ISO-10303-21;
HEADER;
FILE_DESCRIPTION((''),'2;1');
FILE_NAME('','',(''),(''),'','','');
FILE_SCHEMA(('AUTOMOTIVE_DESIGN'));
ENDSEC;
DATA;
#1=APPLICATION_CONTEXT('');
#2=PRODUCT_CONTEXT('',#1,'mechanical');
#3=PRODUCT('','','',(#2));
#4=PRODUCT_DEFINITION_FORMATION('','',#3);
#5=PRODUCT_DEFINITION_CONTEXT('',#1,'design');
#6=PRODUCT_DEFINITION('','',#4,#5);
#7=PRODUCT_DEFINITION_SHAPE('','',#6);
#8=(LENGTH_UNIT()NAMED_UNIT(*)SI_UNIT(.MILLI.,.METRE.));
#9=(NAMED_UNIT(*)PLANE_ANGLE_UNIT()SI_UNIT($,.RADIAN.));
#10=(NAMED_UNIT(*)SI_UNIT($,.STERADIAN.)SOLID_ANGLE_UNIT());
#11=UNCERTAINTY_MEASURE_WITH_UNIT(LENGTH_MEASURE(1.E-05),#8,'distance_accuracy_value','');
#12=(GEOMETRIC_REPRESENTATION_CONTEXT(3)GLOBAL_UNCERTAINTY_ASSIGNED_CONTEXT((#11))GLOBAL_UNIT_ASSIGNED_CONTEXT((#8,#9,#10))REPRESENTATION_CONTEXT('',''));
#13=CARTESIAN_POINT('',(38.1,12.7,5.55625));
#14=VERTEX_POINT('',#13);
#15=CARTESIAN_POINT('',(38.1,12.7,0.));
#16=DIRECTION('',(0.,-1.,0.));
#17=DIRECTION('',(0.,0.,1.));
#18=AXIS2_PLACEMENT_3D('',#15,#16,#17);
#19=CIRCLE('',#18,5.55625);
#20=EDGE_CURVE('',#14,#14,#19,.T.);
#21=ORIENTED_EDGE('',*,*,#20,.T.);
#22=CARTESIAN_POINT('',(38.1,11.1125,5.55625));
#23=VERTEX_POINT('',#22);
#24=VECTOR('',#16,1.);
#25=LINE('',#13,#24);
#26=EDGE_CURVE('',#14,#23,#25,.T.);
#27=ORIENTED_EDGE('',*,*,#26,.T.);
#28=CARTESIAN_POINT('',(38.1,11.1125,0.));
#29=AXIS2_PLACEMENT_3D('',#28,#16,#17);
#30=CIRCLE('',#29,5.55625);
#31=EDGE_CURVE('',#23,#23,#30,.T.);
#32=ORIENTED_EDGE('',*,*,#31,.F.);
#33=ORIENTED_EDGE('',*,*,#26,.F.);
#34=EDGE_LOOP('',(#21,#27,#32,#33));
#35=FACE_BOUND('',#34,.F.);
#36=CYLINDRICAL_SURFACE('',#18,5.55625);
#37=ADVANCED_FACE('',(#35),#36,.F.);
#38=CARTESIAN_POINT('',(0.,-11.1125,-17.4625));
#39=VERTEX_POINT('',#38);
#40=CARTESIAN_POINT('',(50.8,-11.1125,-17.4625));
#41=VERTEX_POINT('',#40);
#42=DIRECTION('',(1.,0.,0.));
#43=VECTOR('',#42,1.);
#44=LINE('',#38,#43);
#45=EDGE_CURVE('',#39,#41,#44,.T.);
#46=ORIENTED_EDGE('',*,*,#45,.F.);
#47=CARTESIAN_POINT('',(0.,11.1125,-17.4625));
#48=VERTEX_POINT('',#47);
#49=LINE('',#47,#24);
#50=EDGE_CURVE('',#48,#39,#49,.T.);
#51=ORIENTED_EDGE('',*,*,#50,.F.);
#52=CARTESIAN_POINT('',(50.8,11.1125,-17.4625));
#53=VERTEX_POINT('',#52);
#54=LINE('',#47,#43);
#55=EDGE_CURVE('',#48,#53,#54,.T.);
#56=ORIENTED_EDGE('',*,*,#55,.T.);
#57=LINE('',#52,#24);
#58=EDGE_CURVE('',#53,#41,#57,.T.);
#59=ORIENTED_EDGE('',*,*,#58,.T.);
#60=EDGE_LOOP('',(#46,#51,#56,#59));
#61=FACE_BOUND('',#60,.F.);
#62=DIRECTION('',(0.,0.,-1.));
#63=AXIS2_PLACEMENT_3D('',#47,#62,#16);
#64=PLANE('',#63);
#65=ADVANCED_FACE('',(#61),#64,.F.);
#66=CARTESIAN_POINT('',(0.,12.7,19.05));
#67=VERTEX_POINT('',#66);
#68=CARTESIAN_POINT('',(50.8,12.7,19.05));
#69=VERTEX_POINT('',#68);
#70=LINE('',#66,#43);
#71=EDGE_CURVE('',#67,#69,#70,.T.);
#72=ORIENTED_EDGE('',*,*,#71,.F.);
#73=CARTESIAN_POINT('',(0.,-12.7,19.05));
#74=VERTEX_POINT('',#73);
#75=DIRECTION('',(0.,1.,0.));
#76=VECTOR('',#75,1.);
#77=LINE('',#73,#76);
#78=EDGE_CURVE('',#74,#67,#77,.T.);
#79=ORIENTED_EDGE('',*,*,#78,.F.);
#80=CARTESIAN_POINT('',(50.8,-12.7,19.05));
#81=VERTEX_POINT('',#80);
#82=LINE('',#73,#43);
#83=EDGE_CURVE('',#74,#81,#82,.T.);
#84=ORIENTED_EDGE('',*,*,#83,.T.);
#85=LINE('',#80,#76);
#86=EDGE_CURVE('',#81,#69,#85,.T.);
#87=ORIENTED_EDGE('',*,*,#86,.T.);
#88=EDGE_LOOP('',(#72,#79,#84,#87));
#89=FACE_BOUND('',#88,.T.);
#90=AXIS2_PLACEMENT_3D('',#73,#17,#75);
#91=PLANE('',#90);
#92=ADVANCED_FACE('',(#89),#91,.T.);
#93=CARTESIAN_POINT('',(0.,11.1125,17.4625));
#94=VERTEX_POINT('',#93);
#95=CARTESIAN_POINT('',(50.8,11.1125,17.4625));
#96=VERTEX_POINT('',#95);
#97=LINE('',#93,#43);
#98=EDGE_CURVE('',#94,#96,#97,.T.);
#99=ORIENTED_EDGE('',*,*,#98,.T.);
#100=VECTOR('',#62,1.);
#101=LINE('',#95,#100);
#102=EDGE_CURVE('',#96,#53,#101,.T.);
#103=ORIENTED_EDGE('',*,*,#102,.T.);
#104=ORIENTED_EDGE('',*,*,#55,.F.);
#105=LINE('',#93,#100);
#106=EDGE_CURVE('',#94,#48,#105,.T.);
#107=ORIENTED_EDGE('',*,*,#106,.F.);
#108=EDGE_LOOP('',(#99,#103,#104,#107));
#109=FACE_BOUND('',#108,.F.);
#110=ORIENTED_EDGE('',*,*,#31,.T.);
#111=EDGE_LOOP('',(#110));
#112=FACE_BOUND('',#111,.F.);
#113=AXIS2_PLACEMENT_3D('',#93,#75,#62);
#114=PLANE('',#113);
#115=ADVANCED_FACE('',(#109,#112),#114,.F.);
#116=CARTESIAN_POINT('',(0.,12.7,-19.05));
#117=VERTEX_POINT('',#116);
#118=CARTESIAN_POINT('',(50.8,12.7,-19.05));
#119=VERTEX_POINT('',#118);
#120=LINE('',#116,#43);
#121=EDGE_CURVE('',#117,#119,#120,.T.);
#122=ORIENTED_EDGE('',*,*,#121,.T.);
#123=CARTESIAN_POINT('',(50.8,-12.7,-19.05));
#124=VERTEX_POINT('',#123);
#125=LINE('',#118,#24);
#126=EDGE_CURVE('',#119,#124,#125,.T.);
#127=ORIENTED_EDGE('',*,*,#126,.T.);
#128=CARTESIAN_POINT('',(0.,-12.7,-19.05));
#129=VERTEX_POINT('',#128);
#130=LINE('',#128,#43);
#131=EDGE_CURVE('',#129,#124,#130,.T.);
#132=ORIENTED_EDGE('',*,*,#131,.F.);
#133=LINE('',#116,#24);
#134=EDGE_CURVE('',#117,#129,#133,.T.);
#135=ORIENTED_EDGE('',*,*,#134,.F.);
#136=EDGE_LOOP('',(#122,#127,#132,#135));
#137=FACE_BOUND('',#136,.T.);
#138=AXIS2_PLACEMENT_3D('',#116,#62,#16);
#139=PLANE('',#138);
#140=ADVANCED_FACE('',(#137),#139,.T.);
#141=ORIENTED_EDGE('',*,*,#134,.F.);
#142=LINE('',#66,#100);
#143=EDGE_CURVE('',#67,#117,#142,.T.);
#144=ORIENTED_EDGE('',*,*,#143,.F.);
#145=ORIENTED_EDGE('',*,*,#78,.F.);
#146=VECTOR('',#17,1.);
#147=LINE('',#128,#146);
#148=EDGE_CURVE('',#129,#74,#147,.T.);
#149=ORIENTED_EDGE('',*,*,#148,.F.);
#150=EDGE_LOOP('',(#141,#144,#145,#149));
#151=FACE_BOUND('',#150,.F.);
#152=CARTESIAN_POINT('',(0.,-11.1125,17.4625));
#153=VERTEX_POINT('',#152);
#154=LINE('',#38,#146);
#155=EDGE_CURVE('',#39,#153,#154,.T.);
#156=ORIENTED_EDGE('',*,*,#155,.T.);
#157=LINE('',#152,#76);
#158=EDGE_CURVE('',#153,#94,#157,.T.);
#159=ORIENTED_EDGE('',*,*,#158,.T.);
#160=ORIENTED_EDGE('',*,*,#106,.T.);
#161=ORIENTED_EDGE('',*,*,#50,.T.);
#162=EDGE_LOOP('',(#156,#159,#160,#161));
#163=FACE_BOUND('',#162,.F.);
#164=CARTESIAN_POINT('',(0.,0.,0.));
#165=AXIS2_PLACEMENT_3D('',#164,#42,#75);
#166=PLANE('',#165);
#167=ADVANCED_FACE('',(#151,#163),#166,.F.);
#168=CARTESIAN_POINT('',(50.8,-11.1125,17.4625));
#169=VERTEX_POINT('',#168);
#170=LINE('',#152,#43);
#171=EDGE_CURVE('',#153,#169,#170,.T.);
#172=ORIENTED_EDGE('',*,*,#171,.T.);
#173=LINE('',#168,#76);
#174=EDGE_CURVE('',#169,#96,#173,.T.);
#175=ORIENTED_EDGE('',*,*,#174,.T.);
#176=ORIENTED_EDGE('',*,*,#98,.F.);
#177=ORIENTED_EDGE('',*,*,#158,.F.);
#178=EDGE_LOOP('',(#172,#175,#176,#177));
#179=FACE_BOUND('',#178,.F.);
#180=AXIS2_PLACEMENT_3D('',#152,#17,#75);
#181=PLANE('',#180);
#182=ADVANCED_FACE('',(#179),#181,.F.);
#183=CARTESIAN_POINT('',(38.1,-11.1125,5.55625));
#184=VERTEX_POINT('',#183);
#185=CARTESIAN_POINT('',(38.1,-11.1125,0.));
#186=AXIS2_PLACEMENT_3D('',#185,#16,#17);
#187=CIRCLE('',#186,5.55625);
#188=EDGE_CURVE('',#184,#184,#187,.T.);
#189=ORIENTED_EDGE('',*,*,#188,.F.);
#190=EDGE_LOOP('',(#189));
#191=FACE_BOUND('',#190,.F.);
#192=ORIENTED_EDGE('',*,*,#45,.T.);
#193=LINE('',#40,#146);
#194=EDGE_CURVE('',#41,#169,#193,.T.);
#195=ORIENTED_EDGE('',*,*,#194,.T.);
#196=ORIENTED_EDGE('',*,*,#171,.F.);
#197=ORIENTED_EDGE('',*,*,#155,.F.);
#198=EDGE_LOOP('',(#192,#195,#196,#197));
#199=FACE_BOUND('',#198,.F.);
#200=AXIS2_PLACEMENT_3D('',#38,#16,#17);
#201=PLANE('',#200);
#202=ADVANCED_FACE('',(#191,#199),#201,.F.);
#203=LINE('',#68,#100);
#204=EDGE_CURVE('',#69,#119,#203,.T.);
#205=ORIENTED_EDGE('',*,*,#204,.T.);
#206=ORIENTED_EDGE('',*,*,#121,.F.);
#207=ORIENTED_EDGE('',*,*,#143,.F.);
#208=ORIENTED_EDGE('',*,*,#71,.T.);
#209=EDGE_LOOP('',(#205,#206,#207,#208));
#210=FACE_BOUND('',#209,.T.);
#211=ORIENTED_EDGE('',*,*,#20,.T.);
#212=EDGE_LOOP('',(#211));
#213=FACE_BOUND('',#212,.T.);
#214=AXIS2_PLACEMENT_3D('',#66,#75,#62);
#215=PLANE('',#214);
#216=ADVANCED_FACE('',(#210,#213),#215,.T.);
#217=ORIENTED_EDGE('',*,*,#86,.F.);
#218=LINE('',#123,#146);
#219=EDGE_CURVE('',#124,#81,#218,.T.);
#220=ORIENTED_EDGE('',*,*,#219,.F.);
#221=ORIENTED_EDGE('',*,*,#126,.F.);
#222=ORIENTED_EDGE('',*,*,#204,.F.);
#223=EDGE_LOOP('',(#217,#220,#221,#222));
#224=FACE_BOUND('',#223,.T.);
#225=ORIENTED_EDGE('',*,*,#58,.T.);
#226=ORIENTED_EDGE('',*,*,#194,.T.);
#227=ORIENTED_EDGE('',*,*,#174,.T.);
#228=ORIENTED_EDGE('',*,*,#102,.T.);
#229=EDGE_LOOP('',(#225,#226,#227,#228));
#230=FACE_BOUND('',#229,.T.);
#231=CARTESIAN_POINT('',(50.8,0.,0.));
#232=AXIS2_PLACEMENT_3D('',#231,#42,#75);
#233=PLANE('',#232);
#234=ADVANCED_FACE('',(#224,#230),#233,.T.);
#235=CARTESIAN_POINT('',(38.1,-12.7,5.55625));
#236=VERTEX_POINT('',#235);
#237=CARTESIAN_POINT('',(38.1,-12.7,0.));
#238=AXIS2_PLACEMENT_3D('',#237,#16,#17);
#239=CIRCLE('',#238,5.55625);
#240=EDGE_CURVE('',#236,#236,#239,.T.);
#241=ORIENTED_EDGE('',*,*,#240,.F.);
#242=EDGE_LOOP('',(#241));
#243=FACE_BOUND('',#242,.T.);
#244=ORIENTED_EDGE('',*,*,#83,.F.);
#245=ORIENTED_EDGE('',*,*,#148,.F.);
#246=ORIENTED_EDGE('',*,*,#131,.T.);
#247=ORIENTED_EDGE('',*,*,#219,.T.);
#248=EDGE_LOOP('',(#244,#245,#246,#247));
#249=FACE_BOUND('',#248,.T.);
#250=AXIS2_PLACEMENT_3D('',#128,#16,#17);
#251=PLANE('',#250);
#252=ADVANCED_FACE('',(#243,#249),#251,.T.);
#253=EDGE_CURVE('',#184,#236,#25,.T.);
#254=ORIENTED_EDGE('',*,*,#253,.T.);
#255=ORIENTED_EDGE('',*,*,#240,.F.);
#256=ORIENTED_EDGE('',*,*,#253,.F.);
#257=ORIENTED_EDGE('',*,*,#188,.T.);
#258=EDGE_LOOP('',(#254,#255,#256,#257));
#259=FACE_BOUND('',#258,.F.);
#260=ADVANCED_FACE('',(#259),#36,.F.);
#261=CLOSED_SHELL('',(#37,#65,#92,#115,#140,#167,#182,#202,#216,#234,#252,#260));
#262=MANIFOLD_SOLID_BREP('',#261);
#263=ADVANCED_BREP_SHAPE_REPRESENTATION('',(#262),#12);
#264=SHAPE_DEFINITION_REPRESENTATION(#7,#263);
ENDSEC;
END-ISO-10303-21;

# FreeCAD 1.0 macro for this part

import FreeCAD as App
import Part
import Sketcher
from FreeCAD import Vector
Q = App.Units.Quantity


def add_polygon(sketch, points):
    """Adds a closed chain of lines whose ends are joined by coincident constraints."""
    first, n = sketch.GeometryCount, len(points)
    for a, b in zip(points, points[1:] + points[:1]):
        sketch.addGeometry(Part.LineSegment(App.Vector(*a, 0), App.Vector(*b, 0)), False)
    for i in range(n):
        sketch.addConstraint(Sketcher.Constraint("Coincident", first + i, 2, first + (i + 1) % n, 1))

doc = App.newDocument("Part")
body = doc.addObject("PartDesign::Body", "Body")

sketch1 = body.newObject("Sketcher::SketchObject", "Sketch")
sketch1.AttachmentSupport = (doc.getObject("YZ_Plane"), [""])
sketch1.MapMode = "FlatFace"
add_polygon(sketch1, [(13, 19), (-13, 19), (-13, -19), (13, -19)])
add_polygon(sketch1, [(-11, -17), (-11, 17), (11, 17), (11, -17)])
sketch1.addConstraint([
    Sketcher.Constraint("Horizontal", 0),
    Sketcher.Constraint("Vertical", 1),
    Sketcher.Constraint("Horizontal", 2),
    Sketcher.Constraint("Vertical", 3),
    Sketcher.Constraint("Vertical", 4),
    Sketcher.Constraint("Horizontal", 5),
    Sketcher.Constraint("Vertical", 6),
    Sketcher.Constraint("Horizontal", 7),
    Sketcher.Constraint("Symmetric", 0, 2, 2, 2, -1, 1),
    Sketcher.Constraint("Symmetric", 4, 2, 6, 2, -1, 1),
    Sketcher.Constraint("DistanceX", 0, 2, 0, 1, Q("1 in")),
    Sketcher.Constraint("DistanceY", 1, 2, 1, 1, Q("1.5 in")),
    Sketcher.Constraint("DistanceX", 0, 2, 4, 2, Q("0.0625 in")),
    Sketcher.Constraint("DistanceY", 4, 2, 0, 2, Q("0.0625 in")),
])
pad1 = body.newObject("PartDesign::Pad", "Pad")
pad1.Profile = sketch1
pad1.Length = Q("2 in")

sketch2 = body.newObject("Sketcher::SketchObject", "Sketch001")
sketch2.AttachmentSupport = (doc.getObject("XZ_Plane"), [""])
sketch2.MapMode = "FlatFace"
sketch2.AttachmentOffset = App.Placement(Vector(0, 0, -0.5 * 25.4), App.Rotation())
sketch2.addGeometry(Part.Circle(Vector(38, 0, 0), Vector(0, 0, 1), 6), False)
sketch2.addConstraint([
    Sketcher.Constraint("PointOnObject", 0, 3, -1),
    Sketcher.Constraint("Diameter", 0, Q("0.4375 in")),
    Sketcher.Constraint("DistanceX", -1, 1, 0, 3, Q("1.5 in")),
])
doc.recompute()
hole = body.newObject("PartDesign::Hole", "Hole")
hole.Profile = sketch2
hole.ThreadType = "None"
hole.Diameter = Q("0.4375 in")
hole.DepthType = "ThroughAll"
hole.Reversed = True

doc.recompute()
